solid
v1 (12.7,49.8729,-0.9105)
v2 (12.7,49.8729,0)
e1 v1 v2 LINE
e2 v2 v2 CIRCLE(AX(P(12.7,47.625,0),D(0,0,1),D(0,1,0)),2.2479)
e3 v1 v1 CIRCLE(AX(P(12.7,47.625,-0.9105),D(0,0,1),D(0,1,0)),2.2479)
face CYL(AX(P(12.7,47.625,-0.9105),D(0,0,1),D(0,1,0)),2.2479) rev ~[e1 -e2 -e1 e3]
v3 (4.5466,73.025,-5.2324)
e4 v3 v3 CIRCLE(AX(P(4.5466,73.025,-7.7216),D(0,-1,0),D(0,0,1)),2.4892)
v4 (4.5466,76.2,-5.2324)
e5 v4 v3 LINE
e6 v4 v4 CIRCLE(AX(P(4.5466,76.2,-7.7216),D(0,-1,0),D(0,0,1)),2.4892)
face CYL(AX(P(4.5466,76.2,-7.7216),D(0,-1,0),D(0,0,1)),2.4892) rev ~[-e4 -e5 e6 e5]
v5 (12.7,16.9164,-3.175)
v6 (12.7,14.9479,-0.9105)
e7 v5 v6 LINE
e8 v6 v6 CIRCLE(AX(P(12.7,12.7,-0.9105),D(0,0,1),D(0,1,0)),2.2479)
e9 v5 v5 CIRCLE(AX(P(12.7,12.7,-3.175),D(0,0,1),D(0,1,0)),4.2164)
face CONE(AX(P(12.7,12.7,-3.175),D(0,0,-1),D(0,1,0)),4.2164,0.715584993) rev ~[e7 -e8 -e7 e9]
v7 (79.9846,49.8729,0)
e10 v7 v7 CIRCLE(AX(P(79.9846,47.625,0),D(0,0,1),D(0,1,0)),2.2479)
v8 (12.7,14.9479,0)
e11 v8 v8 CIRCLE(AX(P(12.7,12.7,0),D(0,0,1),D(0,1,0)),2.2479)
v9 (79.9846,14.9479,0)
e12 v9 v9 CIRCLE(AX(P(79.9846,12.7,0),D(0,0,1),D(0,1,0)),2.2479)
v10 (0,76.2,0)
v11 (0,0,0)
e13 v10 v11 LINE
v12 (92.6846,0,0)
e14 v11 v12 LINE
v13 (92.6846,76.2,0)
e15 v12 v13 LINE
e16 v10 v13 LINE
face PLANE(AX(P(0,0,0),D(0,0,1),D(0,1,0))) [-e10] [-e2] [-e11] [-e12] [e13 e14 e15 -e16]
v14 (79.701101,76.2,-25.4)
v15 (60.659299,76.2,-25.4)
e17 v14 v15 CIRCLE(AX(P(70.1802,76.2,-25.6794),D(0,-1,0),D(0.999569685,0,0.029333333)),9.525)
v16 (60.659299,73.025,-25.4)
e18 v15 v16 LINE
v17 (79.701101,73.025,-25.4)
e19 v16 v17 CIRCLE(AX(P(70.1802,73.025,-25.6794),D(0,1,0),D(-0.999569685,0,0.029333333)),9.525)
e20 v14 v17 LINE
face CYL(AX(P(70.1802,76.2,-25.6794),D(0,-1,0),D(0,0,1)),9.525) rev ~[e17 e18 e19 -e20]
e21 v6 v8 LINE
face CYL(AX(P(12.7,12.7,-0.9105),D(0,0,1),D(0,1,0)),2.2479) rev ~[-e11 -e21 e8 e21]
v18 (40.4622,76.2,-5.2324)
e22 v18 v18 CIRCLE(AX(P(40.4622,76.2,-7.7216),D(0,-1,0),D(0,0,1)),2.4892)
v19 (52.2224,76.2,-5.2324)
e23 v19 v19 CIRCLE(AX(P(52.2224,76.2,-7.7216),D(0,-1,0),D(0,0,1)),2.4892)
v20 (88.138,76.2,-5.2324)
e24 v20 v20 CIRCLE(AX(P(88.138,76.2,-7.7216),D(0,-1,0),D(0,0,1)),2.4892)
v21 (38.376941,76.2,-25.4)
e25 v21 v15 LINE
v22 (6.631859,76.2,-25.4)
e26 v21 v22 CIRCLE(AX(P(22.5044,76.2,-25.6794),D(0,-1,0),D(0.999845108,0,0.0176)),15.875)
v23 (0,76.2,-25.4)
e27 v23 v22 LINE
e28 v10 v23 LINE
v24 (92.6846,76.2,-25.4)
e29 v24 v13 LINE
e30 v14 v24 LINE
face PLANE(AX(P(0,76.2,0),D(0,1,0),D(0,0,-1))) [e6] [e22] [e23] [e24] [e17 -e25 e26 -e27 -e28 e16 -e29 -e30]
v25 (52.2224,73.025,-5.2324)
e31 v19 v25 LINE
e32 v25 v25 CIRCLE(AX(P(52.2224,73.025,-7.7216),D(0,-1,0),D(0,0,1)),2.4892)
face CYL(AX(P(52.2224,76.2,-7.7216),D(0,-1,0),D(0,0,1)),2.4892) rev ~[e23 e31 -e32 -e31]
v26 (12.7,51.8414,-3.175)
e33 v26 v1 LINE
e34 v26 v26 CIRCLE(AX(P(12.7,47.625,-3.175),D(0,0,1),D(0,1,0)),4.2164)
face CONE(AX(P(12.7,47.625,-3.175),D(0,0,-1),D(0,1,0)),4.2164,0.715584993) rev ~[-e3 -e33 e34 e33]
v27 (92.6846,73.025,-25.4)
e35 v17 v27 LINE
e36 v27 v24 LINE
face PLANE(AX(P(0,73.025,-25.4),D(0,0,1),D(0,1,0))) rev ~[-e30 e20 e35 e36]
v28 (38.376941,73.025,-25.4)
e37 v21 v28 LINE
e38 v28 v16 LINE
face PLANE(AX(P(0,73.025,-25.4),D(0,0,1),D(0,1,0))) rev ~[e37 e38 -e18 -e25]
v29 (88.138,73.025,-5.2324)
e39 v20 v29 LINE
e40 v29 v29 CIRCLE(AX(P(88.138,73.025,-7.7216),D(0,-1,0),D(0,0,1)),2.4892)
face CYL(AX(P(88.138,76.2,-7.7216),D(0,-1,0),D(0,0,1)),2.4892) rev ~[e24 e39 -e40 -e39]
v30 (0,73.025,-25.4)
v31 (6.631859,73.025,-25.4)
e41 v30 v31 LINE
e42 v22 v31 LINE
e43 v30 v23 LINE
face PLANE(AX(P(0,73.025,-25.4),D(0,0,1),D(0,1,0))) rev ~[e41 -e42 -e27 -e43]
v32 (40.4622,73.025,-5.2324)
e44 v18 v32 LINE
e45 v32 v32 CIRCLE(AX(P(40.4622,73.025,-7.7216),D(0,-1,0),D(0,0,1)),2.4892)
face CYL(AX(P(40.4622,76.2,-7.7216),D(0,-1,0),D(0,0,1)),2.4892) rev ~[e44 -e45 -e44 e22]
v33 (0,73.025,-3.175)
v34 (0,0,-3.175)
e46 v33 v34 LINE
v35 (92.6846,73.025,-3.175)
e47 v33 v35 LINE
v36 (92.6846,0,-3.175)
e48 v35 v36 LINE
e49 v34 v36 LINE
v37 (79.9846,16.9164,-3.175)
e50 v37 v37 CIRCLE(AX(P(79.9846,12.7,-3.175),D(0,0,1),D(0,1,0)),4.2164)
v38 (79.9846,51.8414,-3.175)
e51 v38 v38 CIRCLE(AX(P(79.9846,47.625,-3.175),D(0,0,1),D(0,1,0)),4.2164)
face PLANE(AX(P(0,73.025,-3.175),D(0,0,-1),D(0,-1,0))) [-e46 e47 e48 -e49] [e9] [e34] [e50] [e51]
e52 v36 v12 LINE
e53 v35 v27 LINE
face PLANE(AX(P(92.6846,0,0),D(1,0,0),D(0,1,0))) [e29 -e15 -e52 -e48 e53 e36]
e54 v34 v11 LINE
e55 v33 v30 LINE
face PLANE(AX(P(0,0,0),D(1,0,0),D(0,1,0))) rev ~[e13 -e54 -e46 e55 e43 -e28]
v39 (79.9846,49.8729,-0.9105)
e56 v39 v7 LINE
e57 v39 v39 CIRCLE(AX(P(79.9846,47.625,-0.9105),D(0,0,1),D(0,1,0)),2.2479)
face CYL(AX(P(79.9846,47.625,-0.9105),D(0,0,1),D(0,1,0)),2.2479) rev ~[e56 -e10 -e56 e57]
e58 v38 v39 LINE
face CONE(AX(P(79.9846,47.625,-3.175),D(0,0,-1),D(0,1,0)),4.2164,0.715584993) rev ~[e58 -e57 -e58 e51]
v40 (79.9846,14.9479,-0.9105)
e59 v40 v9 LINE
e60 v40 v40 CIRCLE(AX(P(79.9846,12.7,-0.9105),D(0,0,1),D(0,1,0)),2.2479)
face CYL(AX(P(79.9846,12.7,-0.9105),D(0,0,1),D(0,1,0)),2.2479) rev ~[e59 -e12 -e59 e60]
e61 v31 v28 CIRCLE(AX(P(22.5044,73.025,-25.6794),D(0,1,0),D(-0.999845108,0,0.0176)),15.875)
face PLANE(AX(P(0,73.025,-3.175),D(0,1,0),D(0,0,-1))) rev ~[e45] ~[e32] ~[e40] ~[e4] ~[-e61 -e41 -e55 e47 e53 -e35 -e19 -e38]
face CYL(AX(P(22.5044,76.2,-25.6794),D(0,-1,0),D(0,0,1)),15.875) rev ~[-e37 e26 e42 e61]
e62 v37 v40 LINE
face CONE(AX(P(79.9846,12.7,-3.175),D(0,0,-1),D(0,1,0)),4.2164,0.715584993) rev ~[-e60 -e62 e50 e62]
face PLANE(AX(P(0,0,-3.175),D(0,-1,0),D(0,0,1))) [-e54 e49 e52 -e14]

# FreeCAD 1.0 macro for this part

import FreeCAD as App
import Part
import Sketcher

V = App.Vector
Q = App.Units.Quantity

doc = App.newDocument("Part")
body = doc.addObject("PartDesign::Body", "Body")

# Sketch on YZ plane
sketch1 = body.newObject("Sketcher::SketchObject", "Sketch")
sketch1.AttachmentSupport = (doc.getObject("YZ_Plane"), [""])
sketch1.MapMode = "FlatFace"
sketch1.addGeometry(Part.LineSegment(V(0, 0, 0), V(0, -3.2, 0)), False)
sketch1.addGeometry(Part.LineSegment(V(0, -3.2, 0), V(73, -3.2, 0)), False)
sketch1.addGeometry(Part.LineSegment(V(73, -3.2, 0), V(73, -25.4, 0)), False)
sketch1.addGeometry(Part.LineSegment(V(73, -25.4, 0), V(76.2, -25.4, 0)), False)
sketch1.addGeometry(Part.LineSegment(V(76.2, -25.4, 0), V(76.2, 0, 0)), False)
sketch1.addGeometry(Part.LineSegment(V(76.2, 0, 0), V(0, 0, 0)), False)
sketch1.addConstraint(Sketcher.Constraint("Coincident", 0, 2, 1, 1))
sketch1.addConstraint(Sketcher.Constraint("Coincident", 1, 2, 2, 1))
sketch1.addConstraint(Sketcher.Constraint("Coincident", 2, 2, 3, 1))
sketch1.addConstraint(Sketcher.Constraint("Coincident", 3, 2, 4, 1))
sketch1.addConstraint(Sketcher.Constraint("Coincident", 4, 2, 5, 1))
sketch1.addConstraint(Sketcher.Constraint("Coincident", 5, 2, 0, 1))
sketch1.addConstraint(Sketcher.Constraint("Vertical", 0))
sketch1.addConstraint(Sketcher.Constraint("Horizontal", 1))
sketch1.addConstraint(Sketcher.Constraint("Vertical", 2))
sketch1.addConstraint(Sketcher.Constraint("Horizontal", 3))
sketch1.addConstraint(Sketcher.Constraint("Vertical", 4))
sketch1.addConstraint(Sketcher.Constraint("Horizontal", 5))
sketch1.addConstraint(Sketcher.Constraint("Coincident", 5, 2, -1, 1))
sketch1.addConstraint(Sketcher.Constraint("Equal", 3, 0))
sketch1.addConstraint(Sketcher.Constraint("DistanceX", 5, 2, 5, 1, Q("3 in")))
sketch1.addConstraint(Sketcher.Constraint("DistanceY", 4, 1, 4, 2, Q("1 in")))
sketch1.addConstraint(Sketcher.Constraint("DistanceX", 3, 1, 3, 2, Q("0.125 in")))
pad1 = body.newObject("PartDesign::Pad", "Pad")
pad1.Profile = sketch1
pad1.Length = Q("3.649 in")

# Sketch on XZ plane
sketch2 = body.newObject("Sketcher::SketchObject", "Sketch001")
sketch2.AttachmentSupport = (doc.getObject("XZ_Plane"), [""])
sketch2.MapMode = "FlatFace"
sketch2.AttachmentOffset = App.Placement(V(0, 0, -3 * 25.4), App.Rotation())
sketch2.addGeometry(Part.Circle(V(4.5, -7.7, 0), V(0, 0, 1), 2.5), False)
sketch2.addGeometry(Part.Circle(V(40.5, -7.7, 0), V(0, 0, 1), 2.5), False)
sketch2.addGeometry(Part.Circle(V(88.1, -7.7, 0), V(0, 0, 1), 2.5), False)
sketch2.addGeometry(Part.Circle(V(52.2, -7.7, 0), V(0, 0, 1), 2.5), False)
sketch2.addConstraint(Sketcher.Constraint("Equal", 0, 1))
sketch2.addConstraint(Sketcher.Constraint("Equal", 1, 2))
sketch2.addConstraint(Sketcher.Constraint("Equal", 2, 3))
sketch2.addConstraint(Sketcher.Constraint("Horizontal", 0, 3, 1, 3))
sketch2.addConstraint(Sketcher.Constraint("Horizontal", 1, 3, 2, 3))
sketch2.addConstraint(Sketcher.Constraint("Horizontal", 2, 3, 3, 3))
sketch2.addConstraint(Sketcher.Constraint("Diameter", 0, Q("0.196 in")))
sketch2.addConstraint(Sketcher.Constraint("DistanceX", -1, 1, 2, 3, Q("3.47 in")))
sketch2.addConstraint(Sketcher.Constraint("DistanceX", -1, 1, 0, 3, Q("0.179 in")))
sketch2.addConstraint(Sketcher.Constraint("DistanceY", 0, 3, -1, 1, Q("0.304 in")))
sketch2.addConstraint(Sketcher.Constraint("DistanceX", -1, 1, 1, 3, Q("1.593 in")))
sketch2.addConstraint(Sketcher.Constraint("DistanceX", -1, 1, 3, 3, Q("2.056 in")))
doc.recompute()
hole = body.newObject("PartDesign::Hole", "Hole")
hole.Profile = sketch2
hole.ThreadType = "None"
hole.Diameter = Q("0.196 in")
hole.DepthType = "Dimension"
hole.Depth = Q("1 in")
hole.DrillPoint = "Angled"
hole.DrillPointAngle = 118
hole.Reversed = True

# Sketch on XZ plane
sketch3 = body.newObject("Sketcher::SketchObject", "Sketch002")
sketch3.AttachmentSupport = (doc.getObject("XZ_Plane"), [""])
sketch3.MapMode = "FlatFace"
sketch3.AttachmentOffset = App.Placement(V(0, 0, -3 * 25.4), App.Rotation())
sketch3.addGeometry(Part.Circle(V(23, -26, 0), V(0, 0, 1), 16), False)
sketch3.addConstraint(Sketcher.Constraint("Diameter", 0, Q("1.25 in")))
sketch3.addConstraint(Sketcher.Constraint("DistanceX", -1, 1, 0, 3, Q("0.886 in")))
sketch3.addConstraint(Sketcher.Constraint("DistanceY", 0, 3, -1, 1, Q("1.011 in")))
doc.recompute()
hole2 = body.newObject("PartDesign::Hole", "Hole001")
hole2.Profile = sketch3
hole2.ThreadType = "None"
hole2.Diameter = Q("1.25 in")
hole2.DepthType = "Dimension"
hole2.Depth = Q("1 in")
hole2.DrillPoint = "Angled"
hole2.DrillPointAngle = 118
hole2.Reversed = True

# Sketch on XZ plane
sketch4 = body.newObject("Sketcher::SketchObject", "Sketch003")
sketch4.AttachmentSupport = (doc.getObject("XZ_Plane"), [""])
sketch4.MapMode = "FlatFace"
sketch4.AttachmentOffset = App.Placement(V(0, 0, -3 * 25.4), App.Rotation())
sketch4.addGeometry(Part.Circle(V(70, -26, 0), V(0, 0, 1), 10), False)
sketch4.addConstraint(Sketcher.Constraint("Diameter", 0, Q("0.75 in")))
sketch4.addConstraint(Sketcher.Constraint("DistanceX", -1, 1, 0, 3, Q("2.763 in")))
sketch4.addConstraint(Sketcher.Constraint("DistanceY", 0, 3, -1, 1, Q("1.011 in")))
doc.recompute()
hole3 = body.newObject("PartDesign::Hole", "Hole002")
hole3.Profile = sketch4
hole3.ThreadType = "None"
hole3.Diameter = Q("0.75 in")
hole3.DepthType = "Dimension"
hole3.Depth = Q("1 in")
hole3.DrillPoint = "Angled"
hole3.DrillPointAngle = 118
hole3.Reversed = True

# Sketch on XY plane
sketch5 = body.newObject("Sketcher::SketchObject", "Sketch004")
sketch5.AttachmentSupport = (doc.getObject("XY_Plane"), [""])
sketch5.MapMode = "FlatFace"
sketch5.AttachmentOffset = App.Placement(V(0, 0, -0.125 * 25.4), App.Rotation())
sketch5.addGeometry(Part.Circle(V(80, 47.6, 0), V(0, 0, 1), 2.2), False)
sketch5.addGeometry(Part.Circle(V(12.7, 47.6, 0), V(0, 0, 1), 2.2), False)
sketch5.addGeometry(Part.Circle(V(12.7, 12.7, 0), V(0, 0, 1), 2.2), False)
sketch5.addGeometry(Part.Circle(V(80, 12.7, 0), V(0, 0, 1), 2.2), False)
sketch5.addConstraint(Sketcher.Constraint("Equal", 0, 1))
sketch5.addConstraint(Sketcher.Constraint("Equal", 1, 2))
sketch5.addConstraint(Sketcher.Constraint("Equal", 2, 3))
sketch5.addConstraint(Sketcher.Constraint("Horizontal", 0, 3, 1, 3))
sketch5.addConstraint(Sketcher.Constraint("Horizontal", 2, 3, 3, 3))
sketch5.addConstraint(Sketcher.Constraint("Vertical", 1, 3, 2, 3))
sketch5.addConstraint(Sketcher.Constraint("Vertical", 0, 3, 3, 3))
sketch5.addConstraint(Sketcher.Constraint("Diameter", 0, Q("0.177 in")))
sketch5.addConstraint(Sketcher.Constraint("DistanceX", -1, 1, 1, 3, Q("0.5 in")))
sketch5.addConstraint(Sketcher.Constraint("DistanceY", -1, 1, 2, 3, Q("0.5 in")))
sketch5.addConstraint(Sketcher.Constraint("DistanceX", -1, 1, 0, 3, Q("3.149 in")))
sketch5.addConstraint(Sketcher.Constraint("DistanceY", -1, 1, 0, 3, Q("1.875 in")))
doc.recompute()
hole4 = body.newObject("PartDesign::Hole", "Hole003")
hole4.Profile = sketch5
hole4.ThreadType = "None"
hole4.Diameter = Q("0.177 in")
hole4.DepthType = "ThroughAll"
hole4.HoleCutType = "Countersink"
hole4.HoleCutDiameter = Q("0.332 in")
hole4.HoleCutCountersinkAngle = 82
hole4.Reversed = True

doc.recompute()
